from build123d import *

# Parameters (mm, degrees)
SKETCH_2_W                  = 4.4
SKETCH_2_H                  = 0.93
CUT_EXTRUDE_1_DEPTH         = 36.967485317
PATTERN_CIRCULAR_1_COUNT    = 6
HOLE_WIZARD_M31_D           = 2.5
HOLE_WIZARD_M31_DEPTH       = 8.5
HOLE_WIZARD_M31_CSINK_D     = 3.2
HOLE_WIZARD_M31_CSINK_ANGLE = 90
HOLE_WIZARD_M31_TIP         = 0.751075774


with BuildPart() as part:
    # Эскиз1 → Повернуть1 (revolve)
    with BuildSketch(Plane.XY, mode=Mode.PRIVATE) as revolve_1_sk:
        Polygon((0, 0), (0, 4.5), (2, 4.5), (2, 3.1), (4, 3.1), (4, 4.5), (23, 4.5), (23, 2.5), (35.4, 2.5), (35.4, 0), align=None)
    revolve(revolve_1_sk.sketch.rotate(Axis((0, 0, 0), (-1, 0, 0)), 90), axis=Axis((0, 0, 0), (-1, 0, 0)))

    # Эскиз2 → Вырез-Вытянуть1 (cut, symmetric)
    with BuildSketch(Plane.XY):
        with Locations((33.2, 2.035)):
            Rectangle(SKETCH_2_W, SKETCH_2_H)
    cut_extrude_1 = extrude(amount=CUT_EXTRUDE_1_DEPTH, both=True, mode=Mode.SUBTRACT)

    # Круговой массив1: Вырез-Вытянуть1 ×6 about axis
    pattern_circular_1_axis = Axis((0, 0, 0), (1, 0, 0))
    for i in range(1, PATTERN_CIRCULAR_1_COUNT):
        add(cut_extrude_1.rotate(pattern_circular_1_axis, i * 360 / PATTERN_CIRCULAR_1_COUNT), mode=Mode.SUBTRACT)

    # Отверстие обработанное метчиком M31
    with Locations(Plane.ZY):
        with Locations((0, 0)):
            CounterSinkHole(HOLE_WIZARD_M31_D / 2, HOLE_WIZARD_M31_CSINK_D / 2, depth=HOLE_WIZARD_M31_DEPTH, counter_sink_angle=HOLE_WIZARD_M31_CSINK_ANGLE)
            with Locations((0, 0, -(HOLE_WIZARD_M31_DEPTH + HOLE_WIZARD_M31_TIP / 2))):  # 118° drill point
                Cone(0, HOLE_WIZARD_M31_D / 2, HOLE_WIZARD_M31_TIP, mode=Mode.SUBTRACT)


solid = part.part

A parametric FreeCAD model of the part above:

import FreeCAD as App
import Part
import Sketcher

V = App.Vector
Q = App.Units.Quantity


def add_polygon(sketch, points):
    """Adds a closed chain of lines whose ends are joined by coincident constraints."""
    first, n = sketch.GeometryCount, len(points)
    for a, b in zip(points, points[1:] + points[:1]):
        sketch.addGeometry(Part.LineSegment(App.Vector(*a, 0), App.Vector(*b, 0)), False)
    for i in range(n):
        sketch.addConstraint(Sketcher.Constraint("Coincident", first + i, 2, first + (i + 1) % n, 1))

doc = App.newDocument("Part")
body = doc.addObject("PartDesign::Body", "Body")

# Sketch on XY plane
sketch1 = doc.addObject("Sketcher::SketchObject", "Sketch")
body.addObject(sketch1)
sketch1.AttachmentSupport = (doc.XY_Plane, [""])
sketch1.MapMode = "FlatFace"
add_polygon(sketch1, [(0, 4.5), (0, 0), (35.4, 0), (35.4, 2.5), (23, 2.5), (23, 4.5), (4, 4.5), (4, 3.1), (2, 3.1), (2, 4.5)])  # lines 0-9
sketch1.addConstraint([
    Sketcher.Constraint("Vertical", 0),
    Sketcher.Constraint("Horizontal", 1),
    Sketcher.Constraint("Vertical", 2),
    Sketcher.Constraint("Horizontal", 3),
    Sketcher.Constraint("Vertical", 4),
    Sketcher.Constraint("Horizontal", 5),
    Sketcher.Constraint("Vertical", 6),
    Sketcher.Constraint("Horizontal", 7),
    Sketcher.Constraint("Vertical", 8),
    Sketcher.Constraint("Horizontal", 9),
    Sketcher.Constraint("Coincident", 0, 2, -1, 1),
    Sketcher.Constraint("Horizontal", 5, 2, 8, 2),
    Sketcher.Constraint("Equal", 7, 9),
    Sketcher.Constraint("Equal", 9, 4),
    Sketcher.Constraint("DistanceX", 5, 2, 5, 1, Q("19 mm")),
    Sketcher.Constraint("DistanceX", 7, 2, 7, 1, Q("2 mm")),
    Sketcher.Constraint("DistanceX", 1, 1, 1, 2, Q("35.4 mm")),
    Sketcher.Constraint("DistanceY", 0, 2, 0, 1, Q("4.5 mm")),
    Sketcher.Constraint("DistanceY", 6, 2, 6, 1, Q("1.4 mm")),
])
revolution = doc.addObject("PartDesign::Revolution", "Revolution")
body.addObject(revolution)
revolution.Profile = sketch1
revolution.ReferenceAxis = (sketch1, ["H_Axis"])
revolution.Angle = 360

# Sketch on XY plane
sketch2 = doc.addObject("Sketcher::SketchObject", "Sketch001")
body.addObject(sketch2)
sketch2.AttachmentSupport = (doc.XY_Plane, [""])
sketch2.MapMode = "FlatFace"
add_polygon(sketch2, [(31, 2.5), (31, 1.6), (35.4, 1.6), (35.4, 2.5)])  # lines 0-3
sketch2.addConstraint([
    Sketcher.Constraint("Vertical", 0),
    Sketcher.Constraint("Horizontal", 1),
    Sketcher.Constraint("Vertical", 2),
    Sketcher.Constraint("Horizontal", 3),
    Sketcher.Constraint("DistanceX", 1, 1, 1, 2, Q("4.4 mm")),
    Sketcher.Constraint("DistanceX", -1, 1, 0, 2, Q("31 mm")),
    Sketcher.Constraint("DistanceY", 0, 2, 0, 1, Q("0.93 mm")),
    Sketcher.Constraint("DistanceY", -1, 1, 2, 2, Q("2.5 mm")),
])
pocket1 = doc.addObject("PartDesign::Pocket", "Pocket")
body.addObject(pocket1)
pocket1.Profile = sketch2
pocket1.Length = 73.934971
pocket1.Midplane = True
doc.recompute()

polarpattern = doc.addObject("PartDesign::PolarPattern", "PolarPattern")
body.addObject(polarpattern)
polarpattern.Originals = [pocket1]
polarpattern.Axis = (doc.X_Axis, [""])
polarpattern.Angle = 360
polarpattern.Occurrences = 6
body.Tip = polarpattern

# Sketch on YZ plane
sketch3 = doc.addObject("Sketcher::SketchObject", "Sketch002")
body.addObject(sketch3)
sketch3.AttachmentSupport = (doc.YZ_Plane, [""])
sketch3.MapMode = "FlatFace"
sketch3.addGeometry(Part.Circle(V(0, 0, 0), V(0, 0, 1), 1.2), False)
sketch3.addConstraint([
    Sketcher.Constraint("Coincident", 0, 3, -1, 1),
    Sketcher.Constraint("Diameter", 0, Q("2.5 mm")),
])
doc.recompute()
hole = doc.addObject("PartDesign::Hole", "Hole")
body.addObject(hole)
hole.Profile = sketch3
hole.ThreadType = "None"
hole.Diameter = 2.5
hole.DepthType = "Dimension"
hole.Depth = 8.5
hole.DrillPoint = "Angled"
hole.DrillPointAngle = 118
hole.HoleCutType = "Countersink"
hole.HoleCutDiameter = 3.2
hole.HoleCutCountersinkAngle = 90
hole.Reversed = True

doc.recompute()
